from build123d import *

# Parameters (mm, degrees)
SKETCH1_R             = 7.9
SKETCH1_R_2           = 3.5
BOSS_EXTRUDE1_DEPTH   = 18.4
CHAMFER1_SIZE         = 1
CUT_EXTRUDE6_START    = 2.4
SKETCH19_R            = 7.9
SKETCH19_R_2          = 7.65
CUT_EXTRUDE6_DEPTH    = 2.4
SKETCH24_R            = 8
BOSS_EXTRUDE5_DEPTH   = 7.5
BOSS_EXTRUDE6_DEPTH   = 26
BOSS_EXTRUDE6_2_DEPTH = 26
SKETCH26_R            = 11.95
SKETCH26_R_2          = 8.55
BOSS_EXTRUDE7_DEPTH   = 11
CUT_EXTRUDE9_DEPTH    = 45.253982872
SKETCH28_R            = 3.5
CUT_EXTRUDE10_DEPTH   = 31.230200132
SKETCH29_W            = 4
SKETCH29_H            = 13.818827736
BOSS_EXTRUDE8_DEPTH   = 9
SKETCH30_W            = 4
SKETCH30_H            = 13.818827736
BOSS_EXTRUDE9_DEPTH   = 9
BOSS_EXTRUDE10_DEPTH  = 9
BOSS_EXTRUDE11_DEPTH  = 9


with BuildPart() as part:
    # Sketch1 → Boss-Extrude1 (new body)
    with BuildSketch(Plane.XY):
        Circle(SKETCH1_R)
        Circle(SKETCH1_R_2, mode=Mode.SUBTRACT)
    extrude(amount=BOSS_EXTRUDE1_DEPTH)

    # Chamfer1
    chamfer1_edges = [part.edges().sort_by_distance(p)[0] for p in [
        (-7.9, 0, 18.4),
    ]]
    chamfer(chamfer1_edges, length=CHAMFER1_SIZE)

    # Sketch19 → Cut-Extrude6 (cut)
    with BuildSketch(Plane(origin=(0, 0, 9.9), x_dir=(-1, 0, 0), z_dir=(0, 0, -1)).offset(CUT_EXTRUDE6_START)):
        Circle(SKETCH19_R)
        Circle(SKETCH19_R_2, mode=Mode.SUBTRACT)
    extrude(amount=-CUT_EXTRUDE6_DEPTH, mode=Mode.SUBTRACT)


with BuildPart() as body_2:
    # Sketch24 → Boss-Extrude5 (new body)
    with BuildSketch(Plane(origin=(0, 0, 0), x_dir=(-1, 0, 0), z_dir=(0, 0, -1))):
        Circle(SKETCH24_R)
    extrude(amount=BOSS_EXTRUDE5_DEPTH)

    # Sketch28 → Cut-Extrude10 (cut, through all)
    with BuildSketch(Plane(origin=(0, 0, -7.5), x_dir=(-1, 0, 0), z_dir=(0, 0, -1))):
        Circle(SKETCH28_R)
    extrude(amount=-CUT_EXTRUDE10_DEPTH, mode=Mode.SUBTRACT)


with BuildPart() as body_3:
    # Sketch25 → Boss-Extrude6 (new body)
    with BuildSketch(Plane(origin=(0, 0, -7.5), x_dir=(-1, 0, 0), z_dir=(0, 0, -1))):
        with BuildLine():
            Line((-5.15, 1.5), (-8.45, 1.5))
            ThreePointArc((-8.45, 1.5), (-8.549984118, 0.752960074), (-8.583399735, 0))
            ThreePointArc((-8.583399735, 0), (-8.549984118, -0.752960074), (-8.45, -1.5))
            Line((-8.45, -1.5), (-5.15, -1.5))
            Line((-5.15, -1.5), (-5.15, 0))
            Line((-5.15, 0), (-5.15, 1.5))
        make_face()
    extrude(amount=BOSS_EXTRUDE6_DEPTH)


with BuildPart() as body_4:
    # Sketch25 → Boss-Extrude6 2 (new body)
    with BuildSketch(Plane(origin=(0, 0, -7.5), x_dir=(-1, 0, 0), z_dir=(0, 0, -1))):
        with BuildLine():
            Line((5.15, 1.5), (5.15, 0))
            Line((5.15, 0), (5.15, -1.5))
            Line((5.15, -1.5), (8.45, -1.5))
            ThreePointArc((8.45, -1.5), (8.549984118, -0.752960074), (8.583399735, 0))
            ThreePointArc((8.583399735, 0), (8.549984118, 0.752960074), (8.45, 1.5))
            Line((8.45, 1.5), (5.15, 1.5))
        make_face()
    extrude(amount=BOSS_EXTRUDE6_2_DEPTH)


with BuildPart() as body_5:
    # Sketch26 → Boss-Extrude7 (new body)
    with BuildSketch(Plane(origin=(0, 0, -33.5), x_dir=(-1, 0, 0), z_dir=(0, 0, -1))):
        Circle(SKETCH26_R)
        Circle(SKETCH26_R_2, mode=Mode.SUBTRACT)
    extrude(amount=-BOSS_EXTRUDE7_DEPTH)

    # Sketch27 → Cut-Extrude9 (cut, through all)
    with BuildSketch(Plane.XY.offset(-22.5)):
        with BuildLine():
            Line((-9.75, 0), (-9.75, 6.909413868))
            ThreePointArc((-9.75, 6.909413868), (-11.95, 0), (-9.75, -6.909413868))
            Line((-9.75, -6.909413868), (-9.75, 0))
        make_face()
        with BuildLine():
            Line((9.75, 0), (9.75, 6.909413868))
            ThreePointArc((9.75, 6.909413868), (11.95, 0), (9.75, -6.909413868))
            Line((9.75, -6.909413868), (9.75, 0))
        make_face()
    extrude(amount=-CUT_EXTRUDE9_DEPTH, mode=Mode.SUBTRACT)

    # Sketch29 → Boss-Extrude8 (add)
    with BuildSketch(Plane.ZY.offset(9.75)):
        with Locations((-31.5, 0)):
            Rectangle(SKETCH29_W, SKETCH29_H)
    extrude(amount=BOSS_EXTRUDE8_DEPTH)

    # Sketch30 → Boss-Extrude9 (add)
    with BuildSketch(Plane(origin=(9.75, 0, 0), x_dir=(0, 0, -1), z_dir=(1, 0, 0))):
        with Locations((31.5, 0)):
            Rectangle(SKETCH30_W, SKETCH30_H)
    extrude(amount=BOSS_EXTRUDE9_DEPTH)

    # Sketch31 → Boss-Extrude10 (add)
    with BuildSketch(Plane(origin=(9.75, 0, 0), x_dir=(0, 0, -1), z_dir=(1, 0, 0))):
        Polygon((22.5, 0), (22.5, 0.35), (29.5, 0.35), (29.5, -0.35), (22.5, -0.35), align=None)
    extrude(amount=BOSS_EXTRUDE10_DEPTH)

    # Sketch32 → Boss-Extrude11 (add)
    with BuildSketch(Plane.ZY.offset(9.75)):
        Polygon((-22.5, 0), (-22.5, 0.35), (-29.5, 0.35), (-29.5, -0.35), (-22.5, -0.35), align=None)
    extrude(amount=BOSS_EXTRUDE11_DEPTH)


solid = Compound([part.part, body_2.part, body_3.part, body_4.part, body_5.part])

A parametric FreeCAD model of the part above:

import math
import FreeCAD as App
import Part
import Sketcher
Q = App.Units.Quantity


def edges_at(feature, points):
    """Names of the edges that pass closest to the given points."""
    edges = feature.Shape.Edges
    near = lambda p: min(range(len(edges)), key=lambda i: edges[i].distToShape(Part.Vertex(*p))[0])
    return sorted({f"Edge{near(p) + 1}" for p in points})

doc = App.newDocument("Part")
body = doc.addObject("PartDesign::Body", "Body")

sketch1 = body.newObject("Sketcher::SketchObject", "Sketch")
sketch1.AttachmentSupport = (doc.getObject("XY_Plane"), [""])
sketch1.MapMode = "FlatFace"
sketch1.addGeometry(Part.Circle(App.Vector(0, 0, 0), App.Vector(0, 0, 1), 7.9), False)
sketch1.addGeometry(Part.Circle(App.Vector(0, 0, 0), App.Vector(0, 0, 1), 3.5), False)
sketch1.addConstraint(Sketcher.Constraint("Coincident", 0, 3, -1, 1))
sketch1.addConstraint(Sketcher.Constraint("Coincident", 1, 3, -1, 1))
sketch1.addConstraint(Sketcher.Constraint("Diameter", 1, Q("7 mm")))
sketch1.addConstraint(Sketcher.Constraint("Diameter", 0, Q("15.8 mm")))
pad1 = body.newObject("PartDesign::Pad", "Pad")
pad1.Profile = sketch1
pad1.Length = 18.4
doc.recompute()

chamfer = body.newObject("PartDesign::Chamfer", "Chamfer")
chamfer.Base = (pad1, edges_at(pad1, [(-7.9, 0, 18.4)]))
chamfer.Size = 1

sketch2 = body.newObject("Sketcher::SketchObject", "Sketch001")
sketch2.AttachmentSupport = (doc.getObject("XY_Plane"), [""])
sketch2.MapMode = "FlatFace"
sketch2.AttachmentOffset = App.Placement(App.Vector(0, 0, 7.5), App.Rotation())
sketch2.addGeometry(Part.Circle(App.Vector(0, 0, 0), App.Vector(0, 0, 1), 7.9), False)
sketch2.addGeometry(Part.Circle(App.Vector(0, 0, 0), App.Vector(0, 0, 1), 7.65), False)
sketch2.addConstraint(Sketcher.Constraint("Coincident", 0, 3, -1, 1))
sketch2.addConstraint(Sketcher.Constraint("Coincident", 1, 3, -1, 1))
sketch2.addConstraint(Sketcher.Constraint("Diameter", 0, Q("15.8 mm")))
sketch2.addConstraint(Sketcher.Constraint("Diameter", 1, Q("15.3 mm")))
pocket1 = body.newObject("PartDesign::Pocket", "Pocket")
pocket1.Profile = sketch2
pocket1.Length = 2.4
pocket1.Reversed = True
body2 = doc.addObject("PartDesign::Body", "Body001")

sketch3 = body2.newObject("Sketcher::SketchObject", "Sketch002")
sketch3.AttachmentSupport = (doc.getObject("XY_Plane001"), [""])
sketch3.MapMode = "FlatFace"
sketch3.addGeometry(Part.Circle(App.Vector(0, 0, 0), App.Vector(0, 0, 1), 8), False)
sketch3.addConstraint(Sketcher.Constraint("Coincident", 0, 3, -1, 1))
sketch3.addConstraint(Sketcher.Constraint("Diameter", 0, Q("16 mm")))
pad2 = body2.newObject("PartDesign::Pad", "Pad001")
pad2.Profile = sketch3
pad2.Length = 7.5
pad2.Reversed = True

sketch4 = body2.newObject("Sketcher::SketchObject", "Sketch003")
sketch4.AttachmentSupport = (doc.getObject("XY_Plane001"), [""])
sketch4.MapMode = "FlatFace"
sketch4.AttachmentOffset = App.Placement(App.Vector(0, 0, -7.5), App.Rotation())
sketch4.addGeometry(Part.Circle(App.Vector(0, 0, 0), App.Vector(0, 0, 1), 3.5), False)
sketch4.addConstraint(Sketcher.Constraint("Coincident", 0, 3, -1, 1))
sketch4.addConstraint(Sketcher.Constraint("Diameter", 0, Q("7 mm")))
pocket2 = body2.newObject("PartDesign::Pocket", "Pocket001")
pocket2.Profile = sketch4
pocket2.Type = "ThroughAll"
pocket2.Reversed = True
body3 = doc.addObject("PartDesign::Body", "Body002")

sketch5 = body3.newObject("Sketcher::SketchObject", "Sketch004")
sketch5.AttachmentSupport = (doc.getObject("XY_Plane002"), [""])
sketch5.MapMode = "FlatFace"
sketch5.AttachmentOffset = App.Placement(App.Vector(0, 0, -7.5), App.Rotation())
sketch5.addGeometry(Part.LineSegment(App.Vector(5.15, 1.5, 0), App.Vector(8.45, 1.5, 0)), False)
sketch5.addGeometry(Part.ArcOfCircle(Part.Circle(App.Vector(0.0834, 0, 0), App.Vector(0, 0, 1), 8.5), math.radians(0), math.radians(10.164249)), False)
sketch5.addGeometry(Part.ArcOfCircle(Part.Circle(App.Vector(0.0834, 0, 0), App.Vector(0, 0, 1), 8.5), math.radians(-10.164249), math.radians(0)), False)
sketch5.addGeometry(Part.LineSegment(App.Vector(8.45, -1.5, 0), App.Vector(5.15, -1.5, 0)), False)
sketch5.addGeometry(Part.LineSegment(App.Vector(5.15, -1.5, 0), App.Vector(5.15, 1.5, 0)), False)
sketch5.addConstraint(Sketcher.Constraint("Coincident", 0, 2, 1, 2))
sketch5.addConstraint(Sketcher.Constraint("Tangent", 1, 1, 2, 2))
sketch5.addConstraint(Sketcher.Constraint("Coincident", 2, 1, 3, 1))
sketch5.addConstraint(Sketcher.Constraint("Coincident", 3, 2, 4, 1))
sketch5.addConstraint(Sketcher.Constraint("Coincident", 4, 2, 0, 1))
sketch5.addConstraint(Sketcher.Constraint("Horizontal", 0))
sketch5.addConstraint(Sketcher.Constraint("Horizontal", 3))
sketch5.addConstraint(Sketcher.Constraint("Vertical", 4))
sketch5.addConstraint(Sketcher.Constraint("Equal", 1, 2))
sketch5.addConstraint(Sketcher.Constraint("Symmetric", 0, 2, 2, 1, -1))
sketch5.addConstraint(Sketcher.Constraint("PointOnObject", 1, 1, -1))
sketch5.addConstraint(Sketcher.Constraint("Radius", 1, Q("8.5 mm")))
sketch5.addConstraint(Sketcher.Constraint("DistanceY", 4, 1, 4, 2, Q("3 mm")))
sketch5.addConstraint(Sketcher.Constraint("DistanceX", 0, 1, 0, 2, Q("3.3 mm")))
sketch5.addConstraint(Sketcher.Constraint("DistanceX", -1, 1, 0, 2, Q("8.45 mm")))
pad3 = body3.newObject("PartDesign::Pad", "Pad002")
pad3.Profile = sketch5
pad3.Length = 26
pad3.Reversed = True
body4 = doc.addObject("PartDesign::Body", "Body003")

sketch6 = body4.newObject("Sketcher::SketchObject", "Sketch005")
sketch6.AttachmentSupport = (doc.getObject("XY_Plane003"), [""])
sketch6.MapMode = "FlatFace"
sketch6.AttachmentOffset = App.Placement(App.Vector(0, 0, -7.5), App.Rotation())
sketch6.addGeometry(Part.LineSegment(App.Vector(-5.15, 1.5, 0), App.Vector(-5.15, -1.5, 0)), False)
sketch6.addGeometry(Part.LineSegment(App.Vector(-5.15, -1.5, 0), App.Vector(-8.45, -1.5, 0)), False)
sketch6.addGeometry(Part.ArcOfCircle(Part.Circle(App.Vector(-0.0834, 0, 0), App.Vector(0, 0, 1), 8.5), math.radians(-180), math.radians(-169.835751)), False)
sketch6.addGeometry(Part.ArcOfCircle(Part.Circle(App.Vector(-0.0834, 0, 0), App.Vector(0, 0, 1), 8.5), math.radians(169.835751), math.radians(180)), False)
sketch6.addGeometry(Part.LineSegment(App.Vector(-8.45, 1.5, 0), App.Vector(-5.15, 1.5, 0)), False)
sketch6.addConstraint(Sketcher.Constraint("Coincident", 0, 2, 1, 1))
sketch6.addConstraint(Sketcher.Constraint("Coincident", 1, 2, 2, 2))
sketch6.addConstraint(Sketcher.Constraint("Tangent", 2, 1, 3, 2))
sketch6.addConstraint(Sketcher.Constraint("Coincident", 3, 1, 4, 1))
sketch6.addConstraint(Sketcher.Constraint("Coincident", 4, 2, 0, 1))
sketch6.addConstraint(Sketcher.Constraint("Vertical", 0))
sketch6.addConstraint(Sketcher.Constraint("Horizontal", 1))
sketch6.addConstraint(Sketcher.Constraint("Horizontal", 4))
sketch6.addConstraint(Sketcher.Constraint("Equal", 2, 3))
sketch6.addConstraint(Sketcher.Constraint("Symmetric", 1, 2, 3, 1, -1))
sketch6.addConstraint(Sketcher.Constraint("PointOnObject", 2, 1, -1))
sketch6.addConstraint(Sketcher.Constraint("Radius", 2, Q("8.5 mm")))
sketch6.addConstraint(Sketcher.Constraint("DistanceY", 0, 2, 0, 1, Q("3 mm")))
sketch6.addConstraint(Sketcher.Constraint("DistanceX", 1, 2, 1, 1, Q("3.3 mm")))
sketch6.addConstraint(Sketcher.Constraint("DistanceX", 0, 2, -1, 1, Q("5.15 mm")))
pad4 = body4.newObject("PartDesign::Pad", "Pad003")
pad4.Profile = sketch6
pad4.Length = 26
pad4.Reversed = True
body5 = doc.addObject("PartDesign::Body", "Body004")

sketch7 = body5.newObject("Sketcher::SketchObject", "Sketch006")
sketch7.AttachmentSupport = (doc.getObject("XY_Plane004"), [""])
sketch7.MapMode = "FlatFace"
sketch7.AttachmentOffset = App.Placement(App.Vector(0, 0, -33.5), App.Rotation())
sketch7.addGeometry(Part.Circle(App.Vector(0, 0, 0), App.Vector(0, 0, 1), 11.95), False)
sketch7.addGeometry(Part.Circle(App.Vector(0, 0, 0), App.Vector(0, 0, 1), 8.55), False)
sketch7.addConstraint(Sketcher.Constraint("Coincident", 0, 3, -1, 1))
sketch7.addConstraint(Sketcher.Constraint("Coincident", 1, 3, -1, 1))
sketch7.addConstraint(Sketcher.Constraint("Diameter", 0, Q("23.9 mm")))
sketch7.addConstraint(Sketcher.Constraint("Diameter", 1, Q("17.1 mm")))
pad5 = body5.newObject("PartDesign::Pad", "Pad004")
pad5.Profile = sketch7
pad5.Length = 11

sketch8 = body5.newObject("Sketcher::SketchObject", "Sketch007")
sketch8.AttachmentSupport = (doc.getObject("XY_Plane004"), [""])
sketch8.MapMode = "FlatFace"
sketch8.AttachmentOffset = App.Placement(App.Vector(0, 0, -22.5), App.Rotation())
sketch8.addGeometry(Part.ArcOfCircle(Part.Circle(App.Vector(0, 0, 0), App.Vector(0, 0, 1), 11.95), math.radians(144.676408), math.radians(215.323592)), False)
sketch8.addGeometry(Part.LineSegment(App.Vector(-9.75, -6.909414, 0), App.Vector(-9.75, 6.909414, 0)), False)
sketch8.addGeometry(Part.ArcOfCircle(Part.Circle(App.Vector(0, 0, 0), App.Vector(0, 0, 1), 11.95), math.radians(-35.323592), math.radians(35.323592)), False)
sketch8.addGeometry(Part.LineSegment(App.Vector(9.75, 6.909414, 0), App.Vector(9.75, -6.909414, 0)), False)
sketch8.addConstraint(Sketcher.Constraint("Coincident", 0, 1, 1, 2))
sketch8.addConstraint(Sketcher.Constraint("Coincident", 1, 1, 0, 2))
sketch8.addConstraint(Sketcher.Constraint("Coincident", 2, 1, 3, 2))
sketch8.addConstraint(Sketcher.Constraint("Coincident", 3, 1, 2, 2))
sketch8.addConstraint(Sketcher.Constraint("Vertical", 1))
sketch8.addConstraint(Sketcher.Constraint("Vertical", 3))
sketch8.addConstraint(Sketcher.Constraint("Coincident", 0, 3, -1, 1))
sketch8.addConstraint(Sketcher.Constraint("Coincident", 2, 3, -1, 1))
sketch8.addConstraint(Sketcher.Constraint("Equal", 0, 2))
sketch8.addConstraint(Sketcher.Constraint("Horizontal", 1, 1, 2, 1))
sketch8.addConstraint(Sketcher.Constraint("Radius", 0, Q("11.95 mm")))
sketch8.addConstraint(Sketcher.Constraint("DistanceX", 1, 1, 2, 1, Q("19.5 mm")))
pocket3 = body5.newObject("PartDesign::Pocket", "Pocket002")
pocket3.Profile = sketch8
pocket3.Type = "ThroughAll"

sketch9 = body5.newObject("Sketcher::SketchObject", "Sketch008")
sketch9.AttachmentSupport = (doc.getObject("YZ_Plane004"), [""])
sketch9.MapMode = "FlatFace"
sketch9.AttachmentOffset = App.Placement(App.Vector(0, 0, -9.75), App.Rotation())
sketch9.addGeometry(Part.LineSegment(App.Vector(6.909414, -33.5, 0), App.Vector(-6.909414, -33.5, 0)), False)
sketch9.addGeometry(Part.LineSegment(App.Vector(-6.909414, -33.5, 0), App.Vector(-6.909414, -29.5, 0)), False)
sketch9.addGeometry(Part.LineSegment(App.Vector(-6.909414, -29.5, 0), App.Vector(6.909414, -29.5, 0)), False)
sketch9.addGeometry(Part.LineSegment(App.Vector(6.909414, -29.5, 0), App.Vector(6.909414, -33.5, 0)), False)
sketch9.addConstraint(Sketcher.Constraint("Coincident", 0, 2, 1, 1))
sketch9.addConstraint(Sketcher.Constraint("Coincident", 1, 2, 2, 1))
sketch9.addConstraint(Sketcher.Constraint("Coincident", 2, 2, 3, 1))
sketch9.addConstraint(Sketcher.Constraint("Coincident", 3, 2, 0, 1))
sketch9.addConstraint(Sketcher.Constraint("Horizontal", 0))
sketch9.addConstraint(Sketcher.Constraint("Vertical", 1))
sketch9.addConstraint(Sketcher.Constraint("Horizontal", 2))
sketch9.addConstraint(Sketcher.Constraint("Vertical", 3))
sketch9.addConstraint(Sketcher.Constraint("DistanceY", 1, 1, 1, 2, Q("4 mm")))
sketch9.addConstraint(Sketcher.Constraint("DistanceY", 0, 2, -1, 1, Q("33.5 mm")))
sketch9.addConstraint(Sketcher.Constraint("DistanceX", 0, 2, 0, 1, Q("13.818828 mm")))
sketch9.addConstraint(Sketcher.Constraint("DistanceX", 0, 2, -1, 1, Q("6.909414 mm")))
pad6 = body5.newObject("PartDesign::Pad", "Pad005")
pad6.Profile = sketch9
pad6.Length = 9
pad6.Reversed = True

sketch10 = body5.newObject("Sketcher::SketchObject", "Sketch009")
sketch10.AttachmentSupport = (doc.getObject("YZ_Plane004"), [""])
sketch10.MapMode = "FlatFace"
sketch10.AttachmentOffset = App.Placement(App.Vector(0, 0, 9.75), App.Rotation())
sketch10.addGeometry(Part.LineSegment(App.Vector(6.909414, -29.5, 0), App.Vector(-6.909414, -29.5, 0)), False)
sketch10.addGeometry(Part.LineSegment(App.Vector(-6.909414, -29.5, 0), App.Vector(-6.909414, -33.5, 0)), False)
sketch10.addGeometry(Part.LineSegment(App.Vector(-6.909414, -33.5, 0), App.Vector(6.909414, -33.5, 0)), False)
sketch10.addGeometry(Part.LineSegment(App.Vector(6.909414, -33.5, 0), App.Vector(6.909414, -29.5, 0)), False)
sketch10.addConstraint(Sketcher.Constraint("Coincident", 0, 2, 1, 1))
sketch10.addConstraint(Sketcher.Constraint("Coincident", 1, 2, 2, 1))
sketch10.addConstraint(Sketcher.Constraint("Coincident", 2, 2, 3, 1))
sketch10.addConstraint(Sketcher.Constraint("Coincident", 3, 2, 0, 1))
sketch10.addConstraint(Sketcher.Constraint("Horizontal", 0))
sketch10.addConstraint(Sketcher.Constraint("Vertical", 1))
sketch10.addConstraint(Sketcher.Constraint("Horizontal", 2))
sketch10.addConstraint(Sketcher.Constraint("Vertical", 3))
sketch10.addConstraint(Sketcher.Constraint("DistanceY", 1, 2, 1, 1, Q("4 mm")))
sketch10.addConstraint(Sketcher.Constraint("DistanceY", 0, 2, -1, 1, Q("29.5 mm")))
sketch10.addConstraint(Sketcher.Constraint("DistanceX", 0, 2, 0, 1, Q("13.818828 mm")))
sketch10.addConstraint(Sketcher.Constraint("DistanceX", 0, 2, -1, 1, Q("6.909414 mm")))
pad7 = body5.newObject("PartDesign::Pad", "Pad006")
pad7.Profile = sketch10
pad7.Length = 9

sketch11 = body5.newObject("Sketcher::SketchObject", "Sketch010")
sketch11.AttachmentSupport = (doc.getObject("YZ_Plane004"), [""])
sketch11.MapMode = "FlatFace"
sketch11.AttachmentOffset = App.Placement(App.Vector(0, 0, 9.75), App.Rotation())
sketch11.addGeometry(Part.LineSegment(App.Vector(0.35, -22.5, 0), App.Vector(-0.35, -22.5, 0)), False)
sketch11.addGeometry(Part.LineSegment(App.Vector(-0.35, -22.5, 0), App.Vector(-0.35, -29.5, 0)), False)
sketch11.addGeometry(Part.LineSegment(App.Vector(-0.35, -29.5, 0), App.Vector(0.35, -29.5, 0)), False)
sketch11.addGeometry(Part.LineSegment(App.Vector(0.35, -29.5, 0), App.Vector(0.35, -22.5, 0)), False)
sketch11.addConstraint(Sketcher.Constraint("Coincident", 0, 2, 1, 1))
sketch11.addConstraint(Sketcher.Constraint("Coincident", 1, 2, 2, 1))
sketch11.addConstraint(Sketcher.Constraint("Coincident", 2, 2, 3, 1))
sketch11.addConstraint(Sketcher.Constraint("Coincident", 3, 2, 0, 1))
sketch11.addConstraint(Sketcher.Constraint("Horizontal", 0))
sketch11.addConstraint(Sketcher.Constraint("Vertical", 1))
sketch11.addConstraint(Sketcher.Constraint("Horizontal", 2))
sketch11.addConstraint(Sketcher.Constraint("Vertical", 3))
sketch11.addConstraint(Sketcher.Constraint("DistanceY", 1, 2, 1, 1, Q("7 mm")))
sketch11.addConstraint(Sketcher.Constraint("DistanceX", 0, 2, 0, 1, Q("0.7 mm")))
sketch11.addConstraint(Sketcher.Constraint("DistanceY", 0, 2, -1, 1, Q("22.5 mm")))
sketch11.addConstraint(Sketcher.Constraint("DistanceX", 0, 2, -1, 1, Q("0.35 mm")))
pad8 = body5.newObject("PartDesign::Pad", "Pad007")
pad8.Profile = sketch11
pad8.Length = 9

sketch12 = body5.newObject("Sketcher::SketchObject", "Sketch011")
sketch12.AttachmentSupport = (doc.getObject("YZ_Plane004"), [""])
sketch12.MapMode = "FlatFace"
sketch12.AttachmentOffset = App.Placement(App.Vector(0, 0, -9.75), App.Rotation())
sketch12.addGeometry(Part.LineSegment(App.Vector(0.35, -22.5, 0), App.Vector(0.35, -29.5, 0)), False)
sketch12.addGeometry(Part.LineSegment(App.Vector(0.35, -29.5, 0), App.Vector(-0.35, -29.5, 0)), False)
sketch12.addGeometry(Part.LineSegment(App.Vector(-0.35, -29.5, 0), App.Vector(-0.35, -22.5, 0)), False)
sketch12.addGeometry(Part.LineSegment(App.Vector(-0.35, -22.5, 0), App.Vector(0.35, -22.5, 0)), False)
sketch12.addConstraint(Sketcher.Constraint("Coincident", 0, 2, 1, 1))
sketch12.addConstraint(Sketcher.Constraint("Coincident", 1, 2, 2, 1))
sketch12.addConstraint(Sketcher.Constraint("Coincident", 2, 2, 3, 1))
sketch12.addConstraint(Sketcher.Constraint("Coincident", 3, 2, 0, 1))
sketch12.addConstraint(Sketcher.Constraint("Vertical", 0))
sketch12.addConstraint(Sketcher.Constraint("Horizontal", 1))
sketch12.addConstraint(Sketcher.Constraint("Vertical", 2))
sketch12.addConstraint(Sketcher.Constraint("Horizontal", 3))
sketch12.addConstraint(Sketcher.Constraint("DistanceY", 0, 2, 0, 1, Q("7 mm")))
sketch12.addConstraint(Sketcher.Constraint("DistanceX", 1, 2, 1, 1, Q("0.7 mm")))
sketch12.addConstraint(Sketcher.Constraint("DistanceY", 0, 2, -1, 1, Q("29.5 mm")))
sketch12.addConstraint(Sketcher.Constraint("DistanceX", -1, 1, 0, 2, Q("0.35 mm")))
pad9 = body5.newObject("PartDesign::Pad", "Pad008")
pad9.Profile = sketch12
pad9.Length = 9
pad9.Reversed = True

doc.recompute()
